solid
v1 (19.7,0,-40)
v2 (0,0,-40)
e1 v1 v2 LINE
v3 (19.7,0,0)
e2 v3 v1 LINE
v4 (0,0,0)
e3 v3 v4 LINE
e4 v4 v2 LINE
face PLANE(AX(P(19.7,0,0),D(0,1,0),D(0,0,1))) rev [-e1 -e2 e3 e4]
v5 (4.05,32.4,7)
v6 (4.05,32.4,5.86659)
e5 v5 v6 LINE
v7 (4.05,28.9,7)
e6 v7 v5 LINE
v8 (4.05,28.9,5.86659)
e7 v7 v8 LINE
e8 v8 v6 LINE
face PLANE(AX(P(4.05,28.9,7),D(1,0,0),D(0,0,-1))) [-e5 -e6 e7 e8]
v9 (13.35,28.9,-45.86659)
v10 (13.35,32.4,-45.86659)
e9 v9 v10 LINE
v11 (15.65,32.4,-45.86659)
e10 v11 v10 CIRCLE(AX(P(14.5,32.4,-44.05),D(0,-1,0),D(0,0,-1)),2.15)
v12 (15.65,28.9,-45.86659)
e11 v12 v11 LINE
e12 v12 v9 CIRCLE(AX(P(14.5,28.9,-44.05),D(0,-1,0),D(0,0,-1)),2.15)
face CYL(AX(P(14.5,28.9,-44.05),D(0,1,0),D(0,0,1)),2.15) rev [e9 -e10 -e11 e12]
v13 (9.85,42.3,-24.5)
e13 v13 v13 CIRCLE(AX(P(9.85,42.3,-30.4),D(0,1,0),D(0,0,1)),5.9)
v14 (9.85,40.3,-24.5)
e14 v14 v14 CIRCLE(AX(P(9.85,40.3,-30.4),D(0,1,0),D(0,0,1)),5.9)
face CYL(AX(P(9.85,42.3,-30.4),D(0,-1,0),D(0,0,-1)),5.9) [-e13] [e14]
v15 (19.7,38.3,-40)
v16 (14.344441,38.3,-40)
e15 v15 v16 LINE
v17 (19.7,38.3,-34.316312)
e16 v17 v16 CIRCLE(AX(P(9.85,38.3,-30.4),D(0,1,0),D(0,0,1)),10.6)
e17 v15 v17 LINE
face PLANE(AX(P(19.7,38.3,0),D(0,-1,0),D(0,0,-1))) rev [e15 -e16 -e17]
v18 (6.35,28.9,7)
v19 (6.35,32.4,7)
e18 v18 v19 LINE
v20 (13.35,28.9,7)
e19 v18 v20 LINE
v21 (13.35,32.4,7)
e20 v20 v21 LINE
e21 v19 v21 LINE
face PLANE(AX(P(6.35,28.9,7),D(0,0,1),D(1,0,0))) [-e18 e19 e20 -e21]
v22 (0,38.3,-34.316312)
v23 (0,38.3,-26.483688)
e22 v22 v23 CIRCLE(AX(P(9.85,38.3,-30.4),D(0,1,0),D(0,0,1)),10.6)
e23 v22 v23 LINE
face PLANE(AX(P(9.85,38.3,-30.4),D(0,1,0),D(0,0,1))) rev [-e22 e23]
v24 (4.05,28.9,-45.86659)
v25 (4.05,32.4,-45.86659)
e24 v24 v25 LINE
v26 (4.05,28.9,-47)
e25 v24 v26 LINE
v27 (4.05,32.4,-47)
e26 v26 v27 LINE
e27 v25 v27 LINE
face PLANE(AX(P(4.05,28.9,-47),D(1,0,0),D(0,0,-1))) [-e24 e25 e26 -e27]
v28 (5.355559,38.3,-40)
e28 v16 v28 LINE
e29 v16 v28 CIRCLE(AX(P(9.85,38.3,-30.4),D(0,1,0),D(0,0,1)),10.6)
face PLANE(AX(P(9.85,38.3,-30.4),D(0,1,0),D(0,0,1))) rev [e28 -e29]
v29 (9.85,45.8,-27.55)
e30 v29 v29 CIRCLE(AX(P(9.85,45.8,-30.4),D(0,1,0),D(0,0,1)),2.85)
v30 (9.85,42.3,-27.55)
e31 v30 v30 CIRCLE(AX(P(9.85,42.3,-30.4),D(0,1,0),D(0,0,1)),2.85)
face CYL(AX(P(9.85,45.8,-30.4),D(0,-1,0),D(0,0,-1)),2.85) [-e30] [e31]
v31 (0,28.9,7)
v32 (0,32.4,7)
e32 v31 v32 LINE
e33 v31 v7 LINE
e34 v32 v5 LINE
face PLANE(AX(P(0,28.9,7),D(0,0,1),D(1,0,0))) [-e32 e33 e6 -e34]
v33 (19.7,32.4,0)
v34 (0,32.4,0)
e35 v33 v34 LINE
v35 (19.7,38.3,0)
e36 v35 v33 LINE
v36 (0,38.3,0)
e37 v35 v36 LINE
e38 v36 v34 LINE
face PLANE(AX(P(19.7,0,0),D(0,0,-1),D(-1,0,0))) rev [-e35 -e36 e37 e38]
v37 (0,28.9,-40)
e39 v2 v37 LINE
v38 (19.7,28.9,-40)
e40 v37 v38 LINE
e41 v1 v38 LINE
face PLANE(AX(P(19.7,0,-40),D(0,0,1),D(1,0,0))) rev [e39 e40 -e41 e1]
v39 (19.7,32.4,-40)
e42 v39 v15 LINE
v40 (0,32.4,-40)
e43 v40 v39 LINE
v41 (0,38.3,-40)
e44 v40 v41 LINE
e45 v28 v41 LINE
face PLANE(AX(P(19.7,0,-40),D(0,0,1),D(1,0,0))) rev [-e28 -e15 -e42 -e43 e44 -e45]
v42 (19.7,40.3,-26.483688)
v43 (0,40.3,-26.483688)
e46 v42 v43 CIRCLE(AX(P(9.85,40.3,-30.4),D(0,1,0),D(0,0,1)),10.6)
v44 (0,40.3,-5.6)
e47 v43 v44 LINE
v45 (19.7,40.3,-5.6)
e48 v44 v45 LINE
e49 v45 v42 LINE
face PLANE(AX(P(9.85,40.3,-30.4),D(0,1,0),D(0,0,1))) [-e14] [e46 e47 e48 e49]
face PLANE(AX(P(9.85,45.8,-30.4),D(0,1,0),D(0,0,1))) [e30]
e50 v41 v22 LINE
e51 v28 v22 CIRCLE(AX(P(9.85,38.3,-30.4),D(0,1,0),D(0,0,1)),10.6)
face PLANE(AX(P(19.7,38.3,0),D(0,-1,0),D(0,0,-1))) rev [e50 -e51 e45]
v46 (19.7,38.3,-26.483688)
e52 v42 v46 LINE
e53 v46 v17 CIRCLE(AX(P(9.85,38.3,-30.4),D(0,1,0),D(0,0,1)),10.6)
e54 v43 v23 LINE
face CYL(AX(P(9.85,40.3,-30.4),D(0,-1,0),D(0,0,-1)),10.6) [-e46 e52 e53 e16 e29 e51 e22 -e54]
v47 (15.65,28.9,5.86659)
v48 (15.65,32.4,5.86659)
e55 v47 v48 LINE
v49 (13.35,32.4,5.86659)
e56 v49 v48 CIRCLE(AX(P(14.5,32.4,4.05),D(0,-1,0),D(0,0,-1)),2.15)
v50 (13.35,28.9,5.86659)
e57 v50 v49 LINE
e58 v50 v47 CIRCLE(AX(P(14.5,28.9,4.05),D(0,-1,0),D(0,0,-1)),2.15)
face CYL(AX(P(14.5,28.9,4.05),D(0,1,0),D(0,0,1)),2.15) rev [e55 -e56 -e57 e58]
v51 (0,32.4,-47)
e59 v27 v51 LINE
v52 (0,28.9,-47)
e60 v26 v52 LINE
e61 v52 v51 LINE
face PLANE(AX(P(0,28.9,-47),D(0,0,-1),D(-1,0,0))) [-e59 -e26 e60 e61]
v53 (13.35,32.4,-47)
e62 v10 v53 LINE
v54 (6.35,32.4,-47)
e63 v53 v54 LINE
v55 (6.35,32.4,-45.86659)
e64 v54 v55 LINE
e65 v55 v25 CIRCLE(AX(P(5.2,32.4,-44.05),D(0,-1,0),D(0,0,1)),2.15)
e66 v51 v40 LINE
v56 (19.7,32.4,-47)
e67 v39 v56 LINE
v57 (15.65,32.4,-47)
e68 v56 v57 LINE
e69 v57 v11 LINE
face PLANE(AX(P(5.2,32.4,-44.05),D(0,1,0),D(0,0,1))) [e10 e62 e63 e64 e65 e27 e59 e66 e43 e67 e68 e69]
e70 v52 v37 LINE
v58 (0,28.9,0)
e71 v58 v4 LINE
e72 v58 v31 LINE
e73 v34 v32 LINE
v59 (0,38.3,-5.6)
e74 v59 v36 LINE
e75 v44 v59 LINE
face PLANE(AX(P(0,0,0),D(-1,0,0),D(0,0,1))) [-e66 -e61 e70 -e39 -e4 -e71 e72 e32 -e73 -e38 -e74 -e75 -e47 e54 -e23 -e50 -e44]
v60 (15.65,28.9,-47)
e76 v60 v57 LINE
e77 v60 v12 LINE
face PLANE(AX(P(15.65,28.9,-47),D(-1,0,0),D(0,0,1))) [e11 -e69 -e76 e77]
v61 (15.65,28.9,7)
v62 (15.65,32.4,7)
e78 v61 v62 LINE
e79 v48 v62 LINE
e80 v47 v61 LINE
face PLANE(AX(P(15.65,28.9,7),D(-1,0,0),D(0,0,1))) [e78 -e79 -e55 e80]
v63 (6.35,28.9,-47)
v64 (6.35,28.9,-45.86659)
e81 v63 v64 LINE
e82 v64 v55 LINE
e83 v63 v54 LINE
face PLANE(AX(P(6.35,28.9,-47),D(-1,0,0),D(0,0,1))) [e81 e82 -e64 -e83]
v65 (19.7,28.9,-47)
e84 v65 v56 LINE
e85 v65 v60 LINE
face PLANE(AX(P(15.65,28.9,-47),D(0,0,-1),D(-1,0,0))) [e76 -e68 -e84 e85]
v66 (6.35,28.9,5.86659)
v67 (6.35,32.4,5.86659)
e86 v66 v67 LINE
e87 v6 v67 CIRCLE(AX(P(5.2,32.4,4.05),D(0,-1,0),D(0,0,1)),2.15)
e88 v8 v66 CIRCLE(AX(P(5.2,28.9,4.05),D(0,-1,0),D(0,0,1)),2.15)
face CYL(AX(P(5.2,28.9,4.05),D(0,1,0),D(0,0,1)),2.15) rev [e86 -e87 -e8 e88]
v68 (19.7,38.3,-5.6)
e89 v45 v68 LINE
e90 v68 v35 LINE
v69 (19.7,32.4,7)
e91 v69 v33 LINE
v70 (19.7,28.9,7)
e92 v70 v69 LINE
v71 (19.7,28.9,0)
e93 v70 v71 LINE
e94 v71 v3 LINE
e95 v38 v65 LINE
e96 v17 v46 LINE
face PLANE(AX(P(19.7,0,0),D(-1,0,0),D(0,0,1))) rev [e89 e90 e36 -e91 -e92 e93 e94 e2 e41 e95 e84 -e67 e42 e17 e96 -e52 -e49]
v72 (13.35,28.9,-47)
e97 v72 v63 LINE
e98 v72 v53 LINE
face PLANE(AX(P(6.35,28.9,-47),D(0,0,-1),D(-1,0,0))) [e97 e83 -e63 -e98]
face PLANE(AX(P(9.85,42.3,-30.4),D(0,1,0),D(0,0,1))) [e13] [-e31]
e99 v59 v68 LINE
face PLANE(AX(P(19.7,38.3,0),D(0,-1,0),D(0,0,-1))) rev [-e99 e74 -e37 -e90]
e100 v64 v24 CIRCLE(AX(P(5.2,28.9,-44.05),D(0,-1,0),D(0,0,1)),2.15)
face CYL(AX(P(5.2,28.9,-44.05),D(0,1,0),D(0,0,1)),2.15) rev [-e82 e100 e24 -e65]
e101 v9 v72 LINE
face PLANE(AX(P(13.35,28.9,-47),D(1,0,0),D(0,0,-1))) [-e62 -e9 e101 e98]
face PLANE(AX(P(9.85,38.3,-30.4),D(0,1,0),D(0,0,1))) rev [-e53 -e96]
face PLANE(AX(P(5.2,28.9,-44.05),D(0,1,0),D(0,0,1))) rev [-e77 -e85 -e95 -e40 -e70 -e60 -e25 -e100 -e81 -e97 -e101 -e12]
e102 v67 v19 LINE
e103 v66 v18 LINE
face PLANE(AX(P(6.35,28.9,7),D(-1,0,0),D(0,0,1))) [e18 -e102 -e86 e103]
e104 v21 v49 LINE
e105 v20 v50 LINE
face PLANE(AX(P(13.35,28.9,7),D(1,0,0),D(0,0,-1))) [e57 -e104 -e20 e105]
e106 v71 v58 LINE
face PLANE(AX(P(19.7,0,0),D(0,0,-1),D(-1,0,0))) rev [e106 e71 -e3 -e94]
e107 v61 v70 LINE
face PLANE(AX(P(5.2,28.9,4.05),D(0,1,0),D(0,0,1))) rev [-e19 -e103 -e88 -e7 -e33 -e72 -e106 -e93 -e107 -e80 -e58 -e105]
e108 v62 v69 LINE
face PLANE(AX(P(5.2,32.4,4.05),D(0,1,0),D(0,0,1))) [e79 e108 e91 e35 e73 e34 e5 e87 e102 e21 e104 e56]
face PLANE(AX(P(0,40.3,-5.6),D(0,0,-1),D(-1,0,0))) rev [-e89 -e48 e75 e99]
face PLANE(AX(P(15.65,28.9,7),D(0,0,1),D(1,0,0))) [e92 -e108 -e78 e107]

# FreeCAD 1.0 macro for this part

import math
import FreeCAD as App
import Part
import Sketcher

V = App.Vector
Q = App.Units.Quantity

doc = App.newDocument("Part")
body = doc.addObject("PartDesign::Body", "Body")

sketch1 = body.newObject("Sketcher::SketchObject", "Sketch")
sketch1.AttachmentSupport = (doc.getObject("YZ_Plane"), [""])
sketch1.MapMode = "FlatFace"
sketch1.addGeometry([
    Part.LineSegment(V(38, 0, 0), V(0, 0, 0)),
    Part.LineSegment(V(0, 0, 0), V(0, -40, 0)),
    Part.LineSegment(V(0, -40, 0), V(38, -40, 0)),
    Part.LineSegment(V(38, -40, 0), V(38, 0, 0)),
], False)
sketch1.addConstraint([
    Sketcher.Constraint("Coincident", 0, 2, 1, 1),
    Sketcher.Constraint("Coincident", 1, 2, 2, 1),
    Sketcher.Constraint("Coincident", 2, 2, 3, 1),
    Sketcher.Constraint("Coincident", 3, 2, 0, 1),
    Sketcher.Constraint("Horizontal", 0),
    Sketcher.Constraint("Vertical", 1),
    Sketcher.Constraint("Horizontal", 2),
    Sketcher.Constraint("Vertical", 3),
    Sketcher.Constraint("Coincident", 0, 2, -1, 1),
    Sketcher.Constraint("DistanceY", 1, 2, 1, 1, Q("40 mm")),
    Sketcher.Constraint("DistanceX", 0, 2, 0, 1, Q("38.3 mm")),
])
pad1 = body.newObject("PartDesign::Pad", "Pad")
pad1.Profile = sketch1
pad1.Length = 19.7

sketch2 = body.newObject("Sketcher::SketchObject", "Sketch001")
sketch2.AttachmentSupport = (doc.getObject("XZ_Plane"), [""])
sketch2.MapMode = "FlatFace"
sketch2.AttachmentOffset = App.Placement(V(0, 0, -38.3), App.Rotation())
sketch2.addGeometry([
    Part.LineSegment(V(0, -6, 0), V(20, -6, 0)),
    Part.LineSegment(V(20, -6, 0), V(20, -26, 0)),
    Part.ArcOfCircle(Part.Circle(V(10, -30, 0), V(0, 0, 1), 11), math.radians(158), math.radians(382)),
    Part.LineSegment(V(0, -26, 0), V(0, -6, 0)),
], False)
sketch2.addConstraint([
    Sketcher.Constraint("Coincident", 0, 2, 1, 1),
    Sketcher.Constraint("Coincident", 1, 2, 2, 2),
    Sketcher.Constraint("Coincident", 2, 1, 3, 1),
    Sketcher.Constraint("Coincident", 3, 2, 0, 1),
    Sketcher.Constraint("Horizontal", 0),
    Sketcher.Constraint("Vertical", 1),
    Sketcher.Constraint("Vertical", 3),
    Sketcher.Constraint("PointOnObject", 2, 1, -2),
    Sketcher.Constraint("Horizontal", 1, 2, 2, 1),
    Sketcher.Constraint("Radius", 2, Q("10.6 mm")),
    Sketcher.Constraint("DistanceX", 0, 1, 0, 2, Q("19.7 mm")),
    Sketcher.Constraint("DistanceY", 2, 3, -1, 1, Q("30.4 mm")),
    Sketcher.Constraint("DistanceY", 0, 2, -1, 1, Q("5.6 mm")),
])
pad2 = body.newObject("PartDesign::Pad", "Pad001")
pad2.Profile = sketch2
pad2.Length = 2
pad2.Reversed = True

sketch3 = body.newObject("Sketcher::SketchObject", "Sketch002")
sketch3.AttachmentSupport = (doc.getObject("XZ_Plane"), [""])
sketch3.MapMode = "FlatFace"
sketch3.AttachmentOffset = App.Placement(V(0, 0, -40.3), App.Rotation())
sketch3.addGeometry(Part.Circle(V(10, -30, 0), V(0, 0, 1), 6), False)
sketch3.addConstraint([
    Sketcher.Constraint("Diameter", 0, Q("11.8 mm")),
    Sketcher.Constraint("DistanceY", 0, 3, -1, 1, Q("30.4 mm")),
    Sketcher.Constraint("DistanceX", -1, 1, 0, 3, Q("9.85 mm")),
])
pad3 = body.newObject("PartDesign::Pad", "Pad002")
pad3.Profile = sketch3
pad3.Length = 2
pad3.Reversed = True

sketch4 = body.newObject("Sketcher::SketchObject", "Sketch003")
sketch4.AttachmentSupport = (doc.getObject("XZ_Plane"), [""])
sketch4.MapMode = "FlatFace"
sketch4.AttachmentOffset = App.Placement(V(0, 0, -42.3), App.Rotation())
sketch4.addGeometry(Part.Circle(V(9.8, -30.4, 0), V(0, 0, 1), 2.9), False)
sketch4.addConstraint([
    Sketcher.Constraint("Diameter", 0, Q("5.7 mm")),
    Sketcher.Constraint("DistanceY", 0, 3, -1, 1, Q("30.4 mm")),
    Sketcher.Constraint("DistanceX", -1, 1, 0, 3, Q("9.85 mm")),
])
pad4 = body.newObject("PartDesign::Pad", "Pad003")
pad4.Profile = sketch4
pad4.Length = 3.5
pad4.Reversed = True

sketch5 = body.newObject("Sketcher::SketchObject", "Sketch004")
sketch5.AttachmentSupport = (doc.getObject("XZ_Plane"), [""])
sketch5.MapMode = "FlatFace"
sketch5.AttachmentOffset = App.Placement(V(0, 0, -32.4), App.Rotation())
sketch5.addGeometry([
    Part.LineSegment(V(19.7, 0, 0), V(0, 0, 0)),
    Part.LineSegment(V(0, 0, 0), V(0, 7, 0)),
    Part.LineSegment(V(0, 7, 0), V(4, 7, 0)),
    Part.LineSegment(V(4, 7, 0), V(4, 5.9, 0)),
    Part.ArcOfCircle(Part.Circle(V(5.2, 4, 0), V(0, 0, 1), 2.1), math.radians(122), math.radians(418)),
    Part.LineSegment(V(6.3, 5.9, 0), V(6.3, 7, 0)),
    Part.LineSegment(V(6.3, 7, 0), V(13.3, 7, 0)),
    Part.LineSegment(V(13.3, 7, 0), V(13.3, 5.9, 0)),
    Part.ArcOfCircle(Part.Circle(V(14.5, 4, 0), V(0, 0, 1), 2.1), math.radians(122), math.radians(418)),
    Part.LineSegment(V(15.7, 5.9, 0), V(15.7, 7, 0)),
    Part.LineSegment(V(15.7, 7, 0), V(19.7, 7, 0)),
    Part.LineSegment(V(19.7, 7, 0), V(19.7, 0, 0)),
    Part.LineSegment(V(0, -40, 0), V(19.7, -40, 0)),
    Part.LineSegment(V(19.7, -40, 0), V(19.7, -47, 0)),
    Part.LineSegment(V(19.7, -47, 0), V(15.7, -47, 0)),
    Part.LineSegment(V(15.7, -47, 0), V(15.7, -45.9, 0)),
    Part.ArcOfCircle(Part.Circle(V(14.5, -44, 0), V(0, 0, 1), 2.1), math.radians(-58), math.radians(238)),
    Part.LineSegment(V(13.3, -45.9, 0), V(13.3, -47, 0)),
    Part.LineSegment(V(13.3, -47, 0), V(6.3, -47, 0)),
    Part.LineSegment(V(6.3, -47, 0), V(6.3, -45.9, 0)),
    Part.ArcOfCircle(Part.Circle(V(5.2, -44, 0), V(0, 0, 1), 2.1), math.radians(-58), math.radians(238)),
    Part.LineSegment(V(4, -45.9, 0), V(4, -47, 0)),
    Part.LineSegment(V(4, -47, 0), V(0, -47, 0)),
    Part.LineSegment(V(0, -47, 0), V(0, -40, 0)),
], False)
sketch5.addConstraint([
    Sketcher.Constraint("Coincident", 0, 2, 1, 1),
    Sketcher.Constraint("Coincident", 1, 2, 2, 1),
    Sketcher.Constraint("Coincident", 2, 2, 3, 1),
    Sketcher.Constraint("Coincident", 3, 2, 4, 1),
    Sketcher.Constraint("Coincident", 4, 2, 5, 1),
    Sketcher.Constraint("Coincident", 5, 2, 6, 1),
    Sketcher.Constraint("Coincident", 6, 2, 7, 1),
    Sketcher.Constraint("Coincident", 7, 2, 8, 1),
    Sketcher.Constraint("Coincident", 8, 2, 9, 1),
    Sketcher.Constraint("Coincident", 9, 2, 10, 1),
    Sketcher.Constraint("Coincident", 10, 2, 11, 1),
    Sketcher.Constraint("Coincident", 11, 2, 0, 1),
    Sketcher.Constraint("Coincident", 12, 2, 13, 1),
    Sketcher.Constraint("Coincident", 13, 2, 14, 1),
    Sketcher.Constraint("Coincident", 14, 2, 15, 1),
    Sketcher.Constraint("Coincident", 15, 2, 16, 1),
    Sketcher.Constraint("Coincident", 16, 2, 17, 1),
    Sketcher.Constraint("Coincident", 17, 2, 18, 1),
    Sketcher.Constraint("Coincident", 18, 2, 19, 1),
    Sketcher.Constraint("Coincident", 19, 2, 20, 1),
    Sketcher.Constraint("Coincident", 20, 2, 21, 1),
    Sketcher.Constraint("Coincident", 21, 2, 22, 1),
    Sketcher.Constraint("Coincident", 22, 2, 23, 1),
    Sketcher.Constraint("Coincident", 23, 2, 12, 1),
    Sketcher.Constraint("Horizontal", 0),
    Sketcher.Constraint("Vertical", 1),
    Sketcher.Constraint("Horizontal", 2),
    Sketcher.Constraint("Vertical", 3),
    Sketcher.Constraint("Vertical", 5),
    Sketcher.Constraint("Horizontal", 6),
    Sketcher.Constraint("Vertical", 7),
    Sketcher.Constraint("Vertical", 9),
    Sketcher.Constraint("Horizontal", 10),
    Sketcher.Constraint("Vertical", 11),
    Sketcher.Constraint("Horizontal", 12),
    Sketcher.Constraint("Vertical", 13),
    Sketcher.Constraint("Horizontal", 14),
    Sketcher.Constraint("Vertical", 15),
    Sketcher.Constraint("Vertical", 17),
    Sketcher.Constraint("Horizontal", 18),
    Sketcher.Constraint("Vertical", 19),
    Sketcher.Constraint("Vertical", 21),
    Sketcher.Constraint("Horizontal", 22),
    Sketcher.Constraint("Vertical", 23),
    Sketcher.Constraint("Coincident", 0, 2, -1, 1),
    Sketcher.Constraint("Equal", 4, 8),
    Sketcher.Constraint("Equal", 8, 16),
    Sketcher.Constraint("Equal", 16, 20),
    Sketcher.Constraint("PointOnObject", 22, 2, -2),
    Sketcher.Constraint("Horizontal", 4, 3, 8, 3),
    Sketcher.Constraint("Horizontal", 16, 3, 20, 3),
    Sketcher.Constraint("Horizontal", 3, 2, 4, 2),
    Sketcher.Constraint("Horizontal", 2, 2, 5, 2),
    Sketcher.Constraint("Horizontal", 4, 2, 7, 2),
    Sketcher.Constraint("Horizontal", 7, 2, 8, 2),
    Sketcher.Constraint("Horizontal", 6, 2, 9, 2),
    Sketcher.Constraint("Horizontal", 15, 2, 16, 2),
    Sketcher.Constraint("Horizontal", 14, 2, 17, 2),
    Sketcher.Constraint("Horizontal", 16, 2, 19, 2),
    Sketcher.Constraint("Horizontal", 19, 2, 20, 2),
    Sketcher.Constraint("Horizontal", 18, 2, 21, 2),
    Sketcher.Constraint("Vertical", 8, 3, 16, 3),
    Sketcher.Constraint("Vertical", 4, 3, 20, 3),
    Sketcher.Constraint("Vertical", 11, 2, 12, 2),
    Sketcher.Constraint("Vertical", 9, 2, 14, 2),
    Sketcher.Constraint("Equal", 2, 10),
    Sketcher.Constraint("Equal", 18, 1),
    Sketcher.Constraint("Equal", 11, 13),
    Sketcher.Constraint("Equal", 9, 15),
    Sketcher.Constraint("DistanceX", 6, 1, 6, 2, Q("7 mm")),
    Sketcher.Constraint("Radius", 4, Q("2.15 mm")),
    Sketcher.Constraint("DistanceX", 0, 2, 0, 1, Q("19.7 mm")),
    Sketcher.Constraint("DistanceY", 12, 2, -1, 1, Q("40 mm")),
    Sketcher.Constraint("DistanceX", 2, 1, 2, 2, Q("4.05 mm")),
    Sketcher.Constraint("DistanceY", 16, 3, 8, 3, Q("48.1 mm")),
])
pad5 = body.newObject("PartDesign::Pad", "Pad004")
pad5.Profile = sketch5
pad5.Length = 3.5

doc.recompute()
